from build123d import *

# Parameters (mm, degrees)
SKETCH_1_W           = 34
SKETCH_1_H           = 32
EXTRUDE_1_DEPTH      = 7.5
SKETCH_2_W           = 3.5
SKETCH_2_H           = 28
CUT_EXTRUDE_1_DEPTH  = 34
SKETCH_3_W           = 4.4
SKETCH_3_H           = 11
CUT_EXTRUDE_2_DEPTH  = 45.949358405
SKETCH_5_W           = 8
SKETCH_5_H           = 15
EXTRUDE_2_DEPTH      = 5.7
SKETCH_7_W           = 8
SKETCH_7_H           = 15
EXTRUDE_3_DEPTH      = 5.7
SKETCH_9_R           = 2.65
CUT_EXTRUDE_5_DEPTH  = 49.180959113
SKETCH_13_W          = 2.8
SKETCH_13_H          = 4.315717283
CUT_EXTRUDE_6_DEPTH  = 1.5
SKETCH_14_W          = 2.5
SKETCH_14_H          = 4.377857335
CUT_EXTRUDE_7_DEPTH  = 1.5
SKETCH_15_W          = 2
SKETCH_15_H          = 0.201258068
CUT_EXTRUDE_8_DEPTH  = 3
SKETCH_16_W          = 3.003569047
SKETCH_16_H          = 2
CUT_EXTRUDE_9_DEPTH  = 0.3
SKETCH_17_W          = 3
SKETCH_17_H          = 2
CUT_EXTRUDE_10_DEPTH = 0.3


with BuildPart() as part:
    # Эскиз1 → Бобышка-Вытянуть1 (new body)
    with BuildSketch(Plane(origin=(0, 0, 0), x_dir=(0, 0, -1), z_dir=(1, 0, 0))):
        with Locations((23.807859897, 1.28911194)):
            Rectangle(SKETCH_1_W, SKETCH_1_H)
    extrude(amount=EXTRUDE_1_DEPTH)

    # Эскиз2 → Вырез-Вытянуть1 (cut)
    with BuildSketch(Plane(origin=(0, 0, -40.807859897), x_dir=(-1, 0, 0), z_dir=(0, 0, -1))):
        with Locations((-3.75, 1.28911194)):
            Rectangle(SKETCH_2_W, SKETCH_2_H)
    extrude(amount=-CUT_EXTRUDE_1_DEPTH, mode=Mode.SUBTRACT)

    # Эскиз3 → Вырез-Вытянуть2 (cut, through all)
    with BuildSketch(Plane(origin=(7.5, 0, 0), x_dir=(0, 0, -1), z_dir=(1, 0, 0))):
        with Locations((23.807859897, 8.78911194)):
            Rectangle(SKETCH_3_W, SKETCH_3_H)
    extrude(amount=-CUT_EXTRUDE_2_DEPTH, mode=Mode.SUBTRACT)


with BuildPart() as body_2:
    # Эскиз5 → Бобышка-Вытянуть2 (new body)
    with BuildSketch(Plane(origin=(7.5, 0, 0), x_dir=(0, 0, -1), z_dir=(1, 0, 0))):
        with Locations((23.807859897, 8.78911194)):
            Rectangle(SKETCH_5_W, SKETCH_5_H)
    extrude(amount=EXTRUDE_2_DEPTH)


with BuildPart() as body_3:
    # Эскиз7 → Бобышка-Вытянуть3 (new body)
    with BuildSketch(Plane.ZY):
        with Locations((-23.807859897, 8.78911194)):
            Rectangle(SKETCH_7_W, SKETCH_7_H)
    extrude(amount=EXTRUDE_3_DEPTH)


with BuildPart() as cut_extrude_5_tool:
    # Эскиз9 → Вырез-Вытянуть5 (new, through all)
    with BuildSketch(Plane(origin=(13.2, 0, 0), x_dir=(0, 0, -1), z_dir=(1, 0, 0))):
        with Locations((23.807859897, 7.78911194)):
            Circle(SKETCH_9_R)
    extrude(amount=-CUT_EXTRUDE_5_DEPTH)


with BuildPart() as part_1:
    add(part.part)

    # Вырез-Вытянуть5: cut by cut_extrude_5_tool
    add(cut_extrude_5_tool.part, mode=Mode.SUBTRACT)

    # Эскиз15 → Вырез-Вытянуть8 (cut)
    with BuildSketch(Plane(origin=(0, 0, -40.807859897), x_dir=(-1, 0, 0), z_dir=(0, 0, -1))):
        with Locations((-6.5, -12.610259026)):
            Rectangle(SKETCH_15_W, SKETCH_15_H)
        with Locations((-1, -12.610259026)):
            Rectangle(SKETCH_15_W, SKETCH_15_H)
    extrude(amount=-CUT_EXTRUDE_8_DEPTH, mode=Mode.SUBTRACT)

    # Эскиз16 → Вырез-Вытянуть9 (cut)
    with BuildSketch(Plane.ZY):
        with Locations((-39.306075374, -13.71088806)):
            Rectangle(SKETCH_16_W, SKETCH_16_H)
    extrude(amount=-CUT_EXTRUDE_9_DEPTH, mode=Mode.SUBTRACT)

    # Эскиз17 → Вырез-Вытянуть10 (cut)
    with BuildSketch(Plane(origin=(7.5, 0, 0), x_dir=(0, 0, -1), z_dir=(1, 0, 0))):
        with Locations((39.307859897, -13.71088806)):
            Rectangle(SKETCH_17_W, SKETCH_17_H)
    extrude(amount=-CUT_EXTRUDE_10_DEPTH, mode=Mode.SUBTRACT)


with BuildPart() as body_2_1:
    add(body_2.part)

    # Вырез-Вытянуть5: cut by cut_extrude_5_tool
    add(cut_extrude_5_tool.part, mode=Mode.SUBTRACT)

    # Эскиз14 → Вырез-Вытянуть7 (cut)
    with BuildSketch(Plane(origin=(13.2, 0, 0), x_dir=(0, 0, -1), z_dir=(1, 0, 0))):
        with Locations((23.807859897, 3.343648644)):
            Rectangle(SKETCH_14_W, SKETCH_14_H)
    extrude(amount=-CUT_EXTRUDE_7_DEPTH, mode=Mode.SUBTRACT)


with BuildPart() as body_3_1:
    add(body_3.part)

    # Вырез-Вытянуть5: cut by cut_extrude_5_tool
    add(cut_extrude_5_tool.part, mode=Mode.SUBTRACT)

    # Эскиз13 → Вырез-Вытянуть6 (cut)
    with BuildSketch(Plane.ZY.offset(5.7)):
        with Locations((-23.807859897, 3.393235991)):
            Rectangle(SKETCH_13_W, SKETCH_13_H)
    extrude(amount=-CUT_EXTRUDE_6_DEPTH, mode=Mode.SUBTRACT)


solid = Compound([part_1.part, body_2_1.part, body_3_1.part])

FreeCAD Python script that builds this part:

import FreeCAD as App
import Part
import Sketcher

V = App.Vector

doc = App.newDocument("Part")
body = doc.addObject("PartDesign::Body", "Body")

sketch1 = doc.addObject("Sketcher::SketchObject", "Sketch")
body.addObject(sketch1)
sketch1.AttachmentSupport = (doc.YZ_Plane, [""])
sketch1.MapMode = "FlatFace"
sketch1.addGeometry(Part.LineSegment(V(17.289112, -6.80786, 0), V(-14.710888, -6.80786, 0)), False)
sketch1.addGeometry(Part.LineSegment(V(-14.710888, -6.80786, 0), V(-14.710888, -40.80786, 0)), False)
sketch1.addGeometry(Part.LineSegment(V(-14.710888, -40.80786, 0), V(17.289112, -40.80786, 0)), False)
sketch1.addGeometry(Part.LineSegment(V(17.289112, -40.80786, 0), V(17.289112, -6.80786, 0)), False)
sketch1.addConstraint(Sketcher.Constraint("Coincident", 0, 2, 1, 1))
sketch1.addConstraint(Sketcher.Constraint("Coincident", 1, 2, 2, 1))
sketch1.addConstraint(Sketcher.Constraint("Coincident", 2, 2, 3, 1))
sketch1.addConstraint(Sketcher.Constraint("Coincident", 3, 2, 0, 1))
sketch1.addConstraint(Sketcher.Constraint("Horizontal", 0))
sketch1.addConstraint(Sketcher.Constraint("Vertical", 1))
sketch1.addConstraint(Sketcher.Constraint("Horizontal", 2))
sketch1.addConstraint(Sketcher.Constraint("Vertical", 3))
sketch1.addConstraint(Sketcher.Constraint("DistanceX", 0, 2, 0, 1, 32.0))
sketch1.addConstraint(Sketcher.Constraint("DistanceY", 1, 2, 1, 1, 34.0))
sketch1.addConstraint(Sketcher.Constraint("DistanceX", 0, 2, -1, 1, 14.710888))
sketch1.addConstraint(Sketcher.Constraint("DistanceY", 0, 2, -1, 1, 6.80786))
pad1 = doc.addObject("PartDesign::Pad", "Pad")
body.addObject(pad1)
pad1.Profile = sketch1
pad1.Length = 7.5

sketch2 = doc.addObject("Sketcher::SketchObject", "Sketch001")
body.addObject(sketch2)
sketch2.AttachmentSupport = (doc.XY_Plane, [""])
sketch2.MapMode = "FlatFace"
sketch2.AttachmentOffset = App.Placement(V(0, 0, -40.80786), App.Rotation())
sketch2.addGeometry(Part.LineSegment(V(5.5, 15.289112, 0), V(5.5, -12.710888, 0)), False)
sketch2.addGeometry(Part.LineSegment(V(5.5, -12.710888, 0), V(2, -12.710888, 0)), False)
sketch2.addGeometry(Part.LineSegment(V(2, -12.710888, 0), V(2, 15.289112, 0)), False)
sketch2.addGeometry(Part.LineSegment(V(2, 15.289112, 0), V(5.5, 15.289112, 0)), False)
sketch2.addConstraint(Sketcher.Constraint("Coincident", 0, 2, 1, 1))
sketch2.addConstraint(Sketcher.Constraint("Coincident", 1, 2, 2, 1))
sketch2.addConstraint(Sketcher.Constraint("Coincident", 2, 2, 3, 1))
sketch2.addConstraint(Sketcher.Constraint("Coincident", 3, 2, 0, 1))
sketch2.addConstraint(Sketcher.Constraint("Vertical", 0))
sketch2.addConstraint(Sketcher.Constraint("Horizontal", 1))
sketch2.addConstraint(Sketcher.Constraint("Vertical", 2))
sketch2.addConstraint(Sketcher.Constraint("Horizontal", 3))
sketch2.addConstraint(Sketcher.Constraint("DistanceY", 0, 2, 0, 1, 28.0))
sketch2.addConstraint(Sketcher.Constraint("DistanceX", 1, 2, 1, 1, 3.5))
sketch2.addConstraint(Sketcher.Constraint("DistanceX", -1, 1, 1, 2, 2.0))
sketch2.addConstraint(Sketcher.Constraint("DistanceY", 0, 2, -1, 1, 12.710888))
pocket1 = doc.addObject("PartDesign::Pocket", "Pocket")
body.addObject(pocket1)
pocket1.Profile = sketch2
pocket1.Length = 34
pocket1.Reversed = True

sketch3 = doc.addObject("Sketcher::SketchObject", "Sketch002")
body.addObject(sketch3)
sketch3.AttachmentSupport = (doc.YZ_Plane, [""])
sketch3.MapMode = "FlatFace"
sketch3.AttachmentOffset = App.Placement(V(0, 0, 7.5), App.Rotation())
sketch3.addGeometry(Part.LineSegment(V(14.289112, -21.60786, 0), V(3.289112, -21.60786, 0)), False)
sketch3.addGeometry(Part.LineSegment(V(3.289112, -21.60786, 0), V(3.289112, -26.00786, 0)), False)
sketch3.addGeometry(Part.LineSegment(V(3.289112, -26.00786, 0), V(14.289112, -26.00786, 0)), False)
sketch3.addGeometry(Part.LineSegment(V(14.289112, -26.00786, 0), V(14.289112, -21.60786, 0)), False)
sketch3.addConstraint(Sketcher.Constraint("Coincident", 0, 2, 1, 1))
sketch3.addConstraint(Sketcher.Constraint("Coincident", 1, 2, 2, 1))
sketch3.addConstraint(Sketcher.Constraint("Coincident", 2, 2, 3, 1))
sketch3.addConstraint(Sketcher.Constraint("Coincident", 3, 2, 0, 1))
sketch3.addConstraint(Sketcher.Constraint("Horizontal", 0))
sketch3.addConstraint(Sketcher.Constraint("Vertical", 1))
sketch3.addConstraint(Sketcher.Constraint("Horizontal", 2))
sketch3.addConstraint(Sketcher.Constraint("Vertical", 3))
sketch3.addConstraint(Sketcher.Constraint("DistanceX", 0, 2, 0, 1, 11.0))
sketch3.addConstraint(Sketcher.Constraint("DistanceY", 1, 2, 1, 1, 4.4))
sketch3.addConstraint(Sketcher.Constraint("DistanceX", -1, 1, 0, 2, 3.289112))
sketch3.addConstraint(Sketcher.Constraint("DistanceY", 0, 2, -1, 1, 21.60786))
pocket2 = doc.addObject("PartDesign::Pocket", "Pocket001")
body.addObject(pocket2)
pocket2.Profile = sketch3
pocket2.Type = "ThroughAll"
body2 = doc.addObject("PartDesign::Body", "Body001")

sketch4 = doc.addObject("Sketcher::SketchObject", "Sketch003")
body2.addObject(sketch4)
sketch4.AttachmentSupport = (doc.getObject("YZ_Plane001"), [""])
sketch4.MapMode = "FlatFace"
sketch4.AttachmentOffset = App.Placement(V(0, 0, 7.5), App.Rotation())
sketch4.addGeometry(Part.LineSegment(V(16.289112, -19.80786, 0), V(1.289112, -19.80786, 0)), False)
sketch4.addGeometry(Part.LineSegment(V(1.289112, -19.80786, 0), V(1.289112, -27.80786, 0)), False)
sketch4.addGeometry(Part.LineSegment(V(1.289112, -27.80786, 0), V(16.289112, -27.80786, 0)), False)
sketch4.addGeometry(Part.LineSegment(V(16.289112, -27.80786, 0), V(16.289112, -19.80786, 0)), False)
sketch4.addConstraint(Sketcher.Constraint("Coincident", 0, 2, 1, 1))
sketch4.addConstraint(Sketcher.Constraint("Coincident", 1, 2, 2, 1))
sketch4.addConstraint(Sketcher.Constraint("Coincident", 2, 2, 3, 1))
sketch4.addConstraint(Sketcher.Constraint("Coincident", 3, 2, 0, 1))
sketch4.addConstraint(Sketcher.Constraint("Horizontal", 0))
sketch4.addConstraint(Sketcher.Constraint("Vertical", 1))
sketch4.addConstraint(Sketcher.Constraint("Horizontal", 2))
sketch4.addConstraint(Sketcher.Constraint("Vertical", 3))
sketch4.addConstraint(Sketcher.Constraint("DistanceX", 0, 2, 0, 1, 15.0))
sketch4.addConstraint(Sketcher.Constraint("DistanceY", 1, 2, 1, 1, 8.0))
sketch4.addConstraint(Sketcher.Constraint("DistanceX", -1, 1, 0, 2, 1.289112))
sketch4.addConstraint(Sketcher.Constraint("DistanceY", 0, 2, -1, 1, 19.80786))
pad2 = doc.addObject("PartDesign::Pad", "Pad001")
body2.addObject(pad2)
pad2.Profile = sketch4
pad2.Length = 5.7
body3 = doc.addObject("PartDesign::Body", "Body002")

sketch5 = doc.addObject("Sketcher::SketchObject", "Sketch004")
body3.addObject(sketch5)
sketch5.AttachmentSupport = (doc.getObject("YZ_Plane002"), [""])
sketch5.MapMode = "FlatFace"
sketch5.addGeometry(Part.LineSegment(V(16.289112, -27.80786, 0), V(1.289112, -27.80786, 0)), False)
sketch5.addGeometry(Part.LineSegment(V(1.289112, -27.80786, 0), V(1.289112, -19.80786, 0)), False)
sketch5.addGeometry(Part.LineSegment(V(1.289112, -19.80786, 0), V(16.289112, -19.80786, 0)), False)
sketch5.addGeometry(Part.LineSegment(V(16.289112, -19.80786, 0), V(16.289112, -27.80786, 0)), False)
sketch5.addConstraint(Sketcher.Constraint("Coincident", 0, 2, 1, 1))
sketch5.addConstraint(Sketcher.Constraint("Coincident", 1, 2, 2, 1))
sketch5.addConstraint(Sketcher.Constraint("Coincident", 2, 2, 3, 1))
sketch5.addConstraint(Sketcher.Constraint("Coincident", 3, 2, 0, 1))
sketch5.addConstraint(Sketcher.Constraint("Horizontal", 0))
sketch5.addConstraint(Sketcher.Constraint("Vertical", 1))
sketch5.addConstraint(Sketcher.Constraint("Horizontal", 2))
sketch5.addConstraint(Sketcher.Constraint("Vertical", 3))
sketch5.addConstraint(Sketcher.Constraint("DistanceX", 0, 2, 0, 1, 15.0))
sketch5.addConstraint(Sketcher.Constraint("DistanceY", 1, 1, 1, 2, 8.0))
sketch5.addConstraint(Sketcher.Constraint("DistanceX", -1, 1, 0, 2, 1.289112))
sketch5.addConstraint(Sketcher.Constraint("DistanceY", 0, 2, -1, 1, 27.80786))
pad3 = doc.addObject("PartDesign::Pad", "Pad002")
body3.addObject(pad3)
pad3.Profile = sketch5
pad3.Length = 5.7
pad3.Reversed = True
body4 = doc.addObject("PartDesign::Body", "Body003")

sketch6 = doc.addObject("Sketcher::SketchObject", "Sketch005")
body4.addObject(sketch6)
sketch6.AttachmentSupport = (doc.getObject("YZ_Plane003"), [""])
sketch6.MapMode = "FlatFace"
sketch6.AttachmentOffset = App.Placement(V(0, 0, 13.2), App.Rotation())
sketch6.addGeometry(Part.Circle(V(7.789112, -23.80786, 0), V(0, 0, 1), 2.65), False)
sketch6.addConstraint(Sketcher.Constraint("Diameter", 0, 5.3))
sketch6.addConstraint(Sketcher.Constraint("DistanceX", -1, 1, 0, 3, 7.789112))
sketch6.addConstraint(Sketcher.Constraint("DistanceY", 0, 3, -1, 1, 23.80786))
pad4 = doc.addObject("PartDesign::Pad", "Pad003")
body4.addObject(pad4)
pad4.Profile = sketch6
pad4.Length = 49.180959
pad4.Reversed = True
doc.recompute()

body5 = doc.addObject("PartDesign::Body", "Body004")
body5.BaseFeature = body4
boolean = doc.addObject("PartDesign::Boolean", "Boolean")
body.addObject(boolean)
boolean.Type = "Cut"
boolean.addObjects([body5])
doc.recompute()

sketch7 = doc.addObject("Sketcher::SketchObject", "Sketch006")
body.addObject(sketch7)
sketch7.AttachmentSupport = (doc.XY_Plane, [""])
sketch7.MapMode = "FlatFace"
sketch7.AttachmentOffset = App.Placement(V(0, 0, -40.80786), App.Rotation())
sketch7.addGeometry(Part.LineSegment(V(7.5, -12.50963, 0), V(7.5, -12.710888, 0)), False)
sketch7.addGeometry(Part.LineSegment(V(7.5, -12.710888, 0), V(5.5, -12.710888, 0)), False)
sketch7.addGeometry(Part.LineSegment(V(5.5, -12.710888, 0), V(5.5, -12.50963, 0)), False)
sketch7.addGeometry(Part.LineSegment(V(5.5, -12.50963, 0), V(7.5, -12.50963, 0)), False)
sketch7.addGeometry(Part.LineSegment(V(2, -12.50963, 0), V(2, -12.710888, 0)), False)
sketch7.addGeometry(Part.LineSegment(V(2, -12.710888, 0), V(0, -12.710888, 0)), False)
sketch7.addGeometry(Part.LineSegment(V(0, -12.710888, 0), V(0, -12.50963, 0)), False)
sketch7.addGeometry(Part.LineSegment(V(0, -12.50963, 0), V(2, -12.50963, 0)), False)
sketch7.addConstraint(Sketcher.Constraint("Coincident", 0, 2, 1, 1))
sketch7.addConstraint(Sketcher.Constraint("Coincident", 1, 2, 2, 1))
sketch7.addConstraint(Sketcher.Constraint("Coincident", 2, 2, 3, 1))
sketch7.addConstraint(Sketcher.Constraint("Coincident", 3, 2, 0, 1))
sketch7.addConstraint(Sketcher.Constraint("Coincident", 4, 2, 5, 1))
sketch7.addConstraint(Sketcher.Constraint("Coincident", 5, 2, 6, 1))
sketch7.addConstraint(Sketcher.Constraint("Coincident", 6, 2, 7, 1))
sketch7.addConstraint(Sketcher.Constraint("Coincident", 7, 2, 4, 1))
sketch7.addConstraint(Sketcher.Constraint("Vertical", 0))
sketch7.addConstraint(Sketcher.Constraint("Horizontal", 1))
sketch7.addConstraint(Sketcher.Constraint("Vertical", 2))
sketch7.addConstraint(Sketcher.Constraint("Horizontal", 3))
sketch7.addConstraint(Sketcher.Constraint("Vertical", 4))
sketch7.addConstraint(Sketcher.Constraint("Horizontal", 5))
sketch7.addConstraint(Sketcher.Constraint("Vertical", 6))
sketch7.addConstraint(Sketcher.Constraint("Horizontal", 7))
sketch7.addConstraint(Sketcher.Constraint("PointOnObject", 5, 2, -2))
sketch7.addConstraint(Sketcher.Constraint("Horizontal", 1, 2, 4, 2))
sketch7.addConstraint(Sketcher.Constraint("Horizontal", 3, 2, 6, 2))
sketch7.addConstraint(Sketcher.Constraint("Equal", 3, 5))
sketch7.addConstraint(Sketcher.Constraint("DistanceX", 1, 2, 1, 1, 2.0))
sketch7.addConstraint(Sketcher.Constraint("DistanceX", -1, 1, 0, 2, 7.5))
sketch7.addConstraint(Sketcher.Constraint("DistanceY", 0, 2, 0, 1, 0.201258))
sketch7.addConstraint(Sketcher.Constraint("DistanceY", 0, 2, -1, 1, 12.710888))
pocket3 = doc.addObject("PartDesign::Pocket", "Pocket002")
body.addObject(pocket3)
pocket3.Profile = sketch7
pocket3.Length = 3
pocket3.Reversed = True

sketch8 = doc.addObject("Sketcher::SketchObject", "Sketch007")
body.addObject(sketch8)
sketch8.AttachmentSupport = (doc.YZ_Plane, [""])
sketch8.MapMode = "FlatFace"
sketch8.addGeometry(Part.LineSegment(V(-12.710888, -40.80786, 0), V(-14.710888, -40.80786, 0)), False)
sketch8.addGeometry(Part.LineSegment(V(-14.710888, -40.80786, 0), V(-14.710888, -37.804291, 0)), False)
sketch8.addGeometry(Part.LineSegment(V(-14.710888, -37.804291, 0), V(-12.710888, -37.804291, 0)), False)
sketch8.addGeometry(Part.LineSegment(V(-12.710888, -37.804291, 0), V(-12.710888, -40.80786, 0)), False)
sketch8.addConstraint(Sketcher.Constraint("Coincident", 0, 2, 1, 1))
sketch8.addConstraint(Sketcher.Constraint("Coincident", 1, 2, 2, 1))
sketch8.addConstraint(Sketcher.Constraint("Coincident", 2, 2, 3, 1))
sketch8.addConstraint(Sketcher.Constraint("Coincident", 3, 2, 0, 1))
sketch8.addConstraint(Sketcher.Constraint("Horizontal", 0))
sketch8.addConstraint(Sketcher.Constraint("Vertical", 1))
sketch8.addConstraint(Sketcher.Constraint("Horizontal", 2))
sketch8.addConstraint(Sketcher.Constraint("Vertical", 3))
sketch8.addConstraint(Sketcher.Constraint("DistanceX", 0, 2, 0, 1, 2.0))
sketch8.addConstraint(Sketcher.Constraint("DistanceY", 1, 1, 1, 2, 3.003569))
sketch8.addConstraint(Sketcher.Constraint("DistanceX", 0, 2, -1, 1, 14.710888))
sketch8.addConstraint(Sketcher.Constraint("DistanceY", 0, 2, -1, 1, 40.80786))
pocket4 = doc.addObject("PartDesign::Pocket", "Pocket003")
body.addObject(pocket4)
pocket4.Profile = sketch8
pocket4.Length = 0.3
pocket4.Reversed = True

sketch9 = doc.addObject("Sketcher::SketchObject", "Sketch008")
body.addObject(sketch9)
sketch9.AttachmentSupport = (doc.YZ_Plane, [""])
sketch9.MapMode = "FlatFace"
sketch9.AttachmentOffset = App.Placement(V(0, 0, 7.5), App.Rotation())
sketch9.addGeometry(Part.LineSegment(V(-12.710888, -37.80786, 0), V(-14.710888, -37.80786, 0)), False)
sketch9.addGeometry(Part.LineSegment(V(-14.710888, -37.80786, 0), V(-14.710888, -40.80786, 0)), False)
sketch9.addGeometry(Part.LineSegment(V(-14.710888, -40.80786, 0), V(-12.710888, -40.80786, 0)), False)
sketch9.addGeometry(Part.LineSegment(V(-12.710888, -40.80786, 0), V(-12.710888, -37.80786, 0)), False)
sketch9.addConstraint(Sketcher.Constraint("Coincident", 0, 2, 1, 1))
sketch9.addConstraint(Sketcher.Constraint("Coincident", 1, 2, 2, 1))
sketch9.addConstraint(Sketcher.Constraint("Coincident", 2, 2, 3, 1))
sketch9.addConstraint(Sketcher.Constraint("Coincident", 3, 2, 0, 1))
sketch9.addConstraint(Sketcher.Constraint("Horizontal", 0))
sketch9.addConstraint(Sketcher.Constraint("Vertical", 1))
sketch9.addConstraint(Sketcher.Constraint("Horizontal", 2))
sketch9.addConstraint(Sketcher.Constraint("Vertical", 3))
sketch9.addConstraint(Sketcher.Constraint("DistanceX", 0, 2, 0, 1, 2.0))
sketch9.addConstraint(Sketcher.Constraint("DistanceY", 1, 2, 1, 1, 3.0))
sketch9.addConstraint(Sketcher.Constraint("DistanceX", 0, 2, -1, 1, 14.710888))
sketch9.addConstraint(Sketcher.Constraint("DistanceY", 0, 2, -1, 1, 37.80786))
pocket5 = doc.addObject("PartDesign::Pocket", "Pocket004")
body.addObject(pocket5)
pocket5.Profile = sketch9
pocket5.Length = 0.3
doc.recompute()

body6 = doc.addObject("PartDesign::Body", "Body005")
body6.BaseFeature = body4
boolean2 = doc.addObject("PartDesign::Boolean", "Boolean001")
body2.addObject(boolean2)
boolean2.Type = "Cut"
boolean2.addObjects([body6])
doc.recompute()

sketch10 = doc.addObject("Sketcher::SketchObject", "Sketch009")
body2.addObject(sketch10)
sketch10.AttachmentSupport = (doc.getObject("YZ_Plane001"), [""])
sketch10.MapMode = "FlatFace"
sketch10.AttachmentOffset = App.Placement(V(0, 0, 13.2), App.Rotation())
sketch10.addGeometry(Part.LineSegment(V(5.532577, -22.55786, 0), V(1.15472, -22.55786, 0)), False)
sketch10.addGeometry(Part.LineSegment(V(1.15472, -22.55786, 0), V(1.15472, -25.05786, 0)), False)
sketch10.addGeometry(Part.LineSegment(V(1.15472, -25.05786, 0), V(5.532577, -25.05786, 0)), False)
sketch10.addGeometry(Part.LineSegment(V(5.532577, -25.05786, 0), V(5.532577, -22.55786, 0)), False)
sketch10.addConstraint(Sketcher.Constraint("Coincident", 0, 2, 1, 1))
sketch10.addConstraint(Sketcher.Constraint("Coincident", 1, 2, 2, 1))
sketch10.addConstraint(Sketcher.Constraint("Coincident", 2, 2, 3, 1))
sketch10.addConstraint(Sketcher.Constraint("Coincident", 3, 2, 0, 1))
sketch10.addConstraint(Sketcher.Constraint("Horizontal", 0))
sketch10.addConstraint(Sketcher.Constraint("Vertical", 1))
sketch10.addConstraint(Sketcher.Constraint("Horizontal", 2))
sketch10.addConstraint(Sketcher.Constraint("Vertical", 3))
sketch10.addConstraint(Sketcher.Constraint("DistanceY", 1, 2, 1, 1, 2.5))
sketch10.addConstraint(Sketcher.Constraint("DistanceX", 0, 2, 0, 1, 4.377857))
sketch10.addConstraint(Sketcher.Constraint("DistanceX", -1, 1, 0, 2, 1.15472))
sketch10.addConstraint(Sketcher.Constraint("DistanceY", 0, 2, -1, 1, 22.55786))
pocket6 = doc.addObject("PartDesign::Pocket", "Pocket005")
body2.addObject(pocket6)
pocket6.Profile = sketch10
pocket6.Length = 1.5
doc.recompute()

boolean3 = doc.addObject("PartDesign::Boolean", "Boolean002")
body3.addObject(boolean3)
boolean3.Type = "Cut"
boolean3.addObjects([body4])

sketch11 = doc.addObject("Sketcher::SketchObject", "Sketch010")
body3.addObject(sketch11)
sketch11.AttachmentSupport = (doc.getObject("YZ_Plane002"), [""])
sketch11.MapMode = "FlatFace"
sketch11.AttachmentOffset = App.Placement(V(0, 0, -5.7), App.Rotation())
sketch11.addGeometry(Part.LineSegment(V(5.551095, -25.20786, 0), V(1.235377, -25.20786, 0)), False)
sketch11.addGeometry(Part.LineSegment(V(1.235377, -25.20786, 0), V(1.235377, -22.40786, 0)), False)
sketch11.addGeometry(Part.LineSegment(V(1.235377, -22.40786, 0), V(5.551095, -22.40786, 0)), False)
sketch11.addGeometry(Part.LineSegment(V(5.551095, -22.40786, 0), V(5.551095, -25.20786, 0)), False)
sketch11.addConstraint(Sketcher.Constraint("Coincident", 0, 2, 1, 1))
sketch11.addConstraint(Sketcher.Constraint("Coincident", 1, 2, 2, 1))
sketch11.addConstraint(Sketcher.Constraint("Coincident", 2, 2, 3, 1))
sketch11.addConstraint(Sketcher.Constraint("Coincident", 3, 2, 0, 1))
sketch11.addConstraint(Sketcher.Constraint("Horizontal", 0))
sketch11.addConstraint(Sketcher.Constraint("Vertical", 1))
sketch11.addConstraint(Sketcher.Constraint("Horizontal", 2))
sketch11.addConstraint(Sketcher.Constraint("Vertical", 3))
sketch11.addConstraint(Sketcher.Constraint("DistanceY", 1, 1, 1, 2, 2.8))
sketch11.addConstraint(Sketcher.Constraint("DistanceX", 0, 2, 0, 1, 4.315717))
sketch11.addConstraint(Sketcher.Constraint("DistanceY", 0, 2, -1, 1, 25.20786))
sketch11.addConstraint(Sketcher.Constraint("DistanceX", -1, 1, 0, 2, 1.235377))
pocket7 = doc.addObject("PartDesign::Pocket", "Pocket006")
body3.addObject(pocket7)
pocket7.Profile = sketch11
pocket7.Length = 1.5
pocket7.Reversed = True

doc.recompute()
